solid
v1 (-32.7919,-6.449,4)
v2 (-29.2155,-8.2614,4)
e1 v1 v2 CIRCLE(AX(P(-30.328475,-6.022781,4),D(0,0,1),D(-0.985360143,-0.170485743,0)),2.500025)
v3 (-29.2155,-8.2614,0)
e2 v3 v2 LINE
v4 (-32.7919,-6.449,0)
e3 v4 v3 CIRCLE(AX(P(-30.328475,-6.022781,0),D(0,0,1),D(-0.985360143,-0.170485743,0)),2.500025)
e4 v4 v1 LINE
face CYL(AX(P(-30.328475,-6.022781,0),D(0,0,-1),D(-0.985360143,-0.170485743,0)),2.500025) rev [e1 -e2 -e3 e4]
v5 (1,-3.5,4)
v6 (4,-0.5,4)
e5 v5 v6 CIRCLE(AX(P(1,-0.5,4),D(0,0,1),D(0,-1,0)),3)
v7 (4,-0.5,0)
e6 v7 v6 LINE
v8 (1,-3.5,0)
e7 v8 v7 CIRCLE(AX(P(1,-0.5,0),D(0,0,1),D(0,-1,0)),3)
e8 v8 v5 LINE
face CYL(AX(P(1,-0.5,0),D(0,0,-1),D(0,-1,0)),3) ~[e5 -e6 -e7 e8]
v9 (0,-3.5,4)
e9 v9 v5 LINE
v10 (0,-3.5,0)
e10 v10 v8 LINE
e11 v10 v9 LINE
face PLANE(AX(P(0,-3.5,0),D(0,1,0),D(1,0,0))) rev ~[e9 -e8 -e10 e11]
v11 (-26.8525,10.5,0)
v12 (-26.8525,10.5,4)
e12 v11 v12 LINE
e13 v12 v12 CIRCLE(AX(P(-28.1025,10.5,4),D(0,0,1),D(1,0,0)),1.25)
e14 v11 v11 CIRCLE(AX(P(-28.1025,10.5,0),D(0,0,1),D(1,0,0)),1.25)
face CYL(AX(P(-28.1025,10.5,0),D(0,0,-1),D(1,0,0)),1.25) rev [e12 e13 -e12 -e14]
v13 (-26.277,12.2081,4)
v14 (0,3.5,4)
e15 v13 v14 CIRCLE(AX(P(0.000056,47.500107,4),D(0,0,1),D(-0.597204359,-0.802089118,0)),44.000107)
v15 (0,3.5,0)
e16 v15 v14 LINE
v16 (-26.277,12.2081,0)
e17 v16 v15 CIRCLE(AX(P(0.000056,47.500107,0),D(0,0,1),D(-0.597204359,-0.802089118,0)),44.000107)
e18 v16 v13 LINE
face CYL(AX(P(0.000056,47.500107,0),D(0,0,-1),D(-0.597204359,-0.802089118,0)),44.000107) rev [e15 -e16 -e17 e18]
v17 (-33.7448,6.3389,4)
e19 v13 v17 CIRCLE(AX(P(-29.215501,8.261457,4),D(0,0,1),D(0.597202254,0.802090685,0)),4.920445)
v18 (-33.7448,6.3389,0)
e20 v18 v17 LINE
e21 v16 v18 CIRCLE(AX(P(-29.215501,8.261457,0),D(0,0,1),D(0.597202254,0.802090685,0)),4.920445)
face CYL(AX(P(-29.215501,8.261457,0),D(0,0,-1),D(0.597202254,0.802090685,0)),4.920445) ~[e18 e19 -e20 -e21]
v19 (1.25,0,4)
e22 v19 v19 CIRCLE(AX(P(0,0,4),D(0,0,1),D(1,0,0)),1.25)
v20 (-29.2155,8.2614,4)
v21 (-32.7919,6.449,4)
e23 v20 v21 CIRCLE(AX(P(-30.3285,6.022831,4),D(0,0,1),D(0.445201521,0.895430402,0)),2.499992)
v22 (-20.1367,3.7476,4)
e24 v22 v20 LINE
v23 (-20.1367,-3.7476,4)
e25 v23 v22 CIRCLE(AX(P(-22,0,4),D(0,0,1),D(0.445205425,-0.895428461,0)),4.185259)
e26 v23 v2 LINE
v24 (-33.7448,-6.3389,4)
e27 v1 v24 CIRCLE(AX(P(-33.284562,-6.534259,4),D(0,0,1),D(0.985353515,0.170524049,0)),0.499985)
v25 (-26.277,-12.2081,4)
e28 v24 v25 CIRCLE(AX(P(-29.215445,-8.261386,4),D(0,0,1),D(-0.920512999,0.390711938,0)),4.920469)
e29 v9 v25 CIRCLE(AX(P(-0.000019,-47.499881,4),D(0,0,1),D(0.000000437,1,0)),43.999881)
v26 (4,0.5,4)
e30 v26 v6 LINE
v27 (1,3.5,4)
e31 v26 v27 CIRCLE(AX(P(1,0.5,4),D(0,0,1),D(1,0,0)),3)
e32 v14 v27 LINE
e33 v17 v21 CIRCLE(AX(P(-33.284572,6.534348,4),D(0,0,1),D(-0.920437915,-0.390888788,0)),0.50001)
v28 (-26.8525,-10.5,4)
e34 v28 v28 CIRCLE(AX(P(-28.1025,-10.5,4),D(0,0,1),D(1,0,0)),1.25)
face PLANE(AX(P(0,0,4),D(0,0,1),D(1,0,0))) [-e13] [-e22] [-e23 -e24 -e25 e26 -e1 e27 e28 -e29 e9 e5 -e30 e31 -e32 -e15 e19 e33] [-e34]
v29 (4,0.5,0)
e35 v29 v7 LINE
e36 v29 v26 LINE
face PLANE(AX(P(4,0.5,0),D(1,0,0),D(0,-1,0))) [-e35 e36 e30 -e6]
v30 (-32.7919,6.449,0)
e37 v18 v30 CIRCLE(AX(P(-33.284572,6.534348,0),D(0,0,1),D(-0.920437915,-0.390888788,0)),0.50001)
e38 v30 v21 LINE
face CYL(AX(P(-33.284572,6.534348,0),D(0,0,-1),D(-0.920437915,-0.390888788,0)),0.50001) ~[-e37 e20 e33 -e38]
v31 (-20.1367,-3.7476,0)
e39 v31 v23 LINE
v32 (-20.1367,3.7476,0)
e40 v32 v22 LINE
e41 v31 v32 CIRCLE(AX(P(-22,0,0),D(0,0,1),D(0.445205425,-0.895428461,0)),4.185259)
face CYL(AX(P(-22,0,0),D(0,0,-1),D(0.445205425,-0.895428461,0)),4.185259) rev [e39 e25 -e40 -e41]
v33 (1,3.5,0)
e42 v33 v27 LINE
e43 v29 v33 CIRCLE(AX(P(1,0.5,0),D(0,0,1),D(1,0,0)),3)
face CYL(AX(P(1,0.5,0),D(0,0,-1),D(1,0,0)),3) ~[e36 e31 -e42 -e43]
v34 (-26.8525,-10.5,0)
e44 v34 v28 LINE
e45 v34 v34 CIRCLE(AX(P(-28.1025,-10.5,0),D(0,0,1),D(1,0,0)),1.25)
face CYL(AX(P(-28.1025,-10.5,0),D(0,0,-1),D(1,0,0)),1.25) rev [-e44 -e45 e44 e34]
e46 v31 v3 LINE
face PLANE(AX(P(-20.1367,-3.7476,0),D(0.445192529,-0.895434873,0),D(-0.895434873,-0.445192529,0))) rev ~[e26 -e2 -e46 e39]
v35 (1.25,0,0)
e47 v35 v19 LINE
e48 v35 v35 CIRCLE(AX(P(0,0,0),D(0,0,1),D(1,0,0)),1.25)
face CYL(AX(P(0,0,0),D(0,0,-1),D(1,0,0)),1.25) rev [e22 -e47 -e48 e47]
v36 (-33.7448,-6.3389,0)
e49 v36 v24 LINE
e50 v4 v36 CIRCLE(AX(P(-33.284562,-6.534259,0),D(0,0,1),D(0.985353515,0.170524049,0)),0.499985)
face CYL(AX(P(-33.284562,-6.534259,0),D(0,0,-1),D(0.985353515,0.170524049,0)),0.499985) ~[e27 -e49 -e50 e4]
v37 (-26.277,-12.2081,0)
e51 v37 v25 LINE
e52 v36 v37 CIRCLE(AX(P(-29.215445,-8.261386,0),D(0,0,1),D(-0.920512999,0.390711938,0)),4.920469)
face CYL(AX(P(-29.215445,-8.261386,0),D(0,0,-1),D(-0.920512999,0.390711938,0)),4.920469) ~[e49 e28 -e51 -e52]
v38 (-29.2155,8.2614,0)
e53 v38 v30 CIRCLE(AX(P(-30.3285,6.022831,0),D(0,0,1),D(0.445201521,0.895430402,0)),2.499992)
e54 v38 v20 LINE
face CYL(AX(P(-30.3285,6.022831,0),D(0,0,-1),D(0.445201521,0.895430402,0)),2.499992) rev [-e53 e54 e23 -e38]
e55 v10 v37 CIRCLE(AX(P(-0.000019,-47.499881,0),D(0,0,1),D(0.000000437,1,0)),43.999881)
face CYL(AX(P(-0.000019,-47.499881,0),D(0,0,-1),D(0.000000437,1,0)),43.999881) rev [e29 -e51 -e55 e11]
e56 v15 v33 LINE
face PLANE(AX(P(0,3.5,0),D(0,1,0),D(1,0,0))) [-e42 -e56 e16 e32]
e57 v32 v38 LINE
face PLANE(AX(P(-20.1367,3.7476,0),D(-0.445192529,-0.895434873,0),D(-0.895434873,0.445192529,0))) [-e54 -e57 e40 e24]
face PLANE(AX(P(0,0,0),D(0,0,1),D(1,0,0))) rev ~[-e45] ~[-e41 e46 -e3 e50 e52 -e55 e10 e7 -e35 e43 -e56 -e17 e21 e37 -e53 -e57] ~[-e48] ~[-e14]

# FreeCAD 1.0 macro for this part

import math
import FreeCAD as App
import Part
import Sketcher
from FreeCAD import Vector
Q = App.Units.Quantity

doc = App.newDocument("Part")
body = doc.addObject("PartDesign::Body", "Body")

# Sketch on XY plane
sketch1 = body.newObject("Sketcher::SketchObject", "Sketch")
sketch1.AttachmentSupport = (doc.getObject("XY_Plane"), [""])
sketch1.MapMode = "FlatFace"
sketch1.addGeometry(Part.LineSegment(Vector(1, 3.5, 0), Vector(0, 3.5, 0)), False)
sketch1.addGeometry(Part.ArcOfCircle(Part.Circle(Vector(0, 47.5, 0), Vector(0, 0, 1), 44), math.radians(-127), math.radians(-90)), False)
sketch1.addGeometry(Part.ArcOfCircle(Part.Circle(Vector(-29.22, 8.26, 0), Vector(0, 0, 1), 4.92), math.radians(53), math.radians(203)), False)
sketch1.addGeometry(Part.ArcOfCircle(Part.Circle(Vector(-33.28, 6.53, 0), Vector(0, 0, 1), 0.5), math.radians(-157), math.radians(-10)), False)
sketch1.addGeometry(Part.ArcOfCircle(Part.Circle(Vector(-30.33, 6.02, 0), Vector(0, 0, 1), 2.5), math.radians(64), math.radians(170)), False)
sketch1.addGeometry(Part.LineSegment(Vector(-29.22, 8.26, 0), Vector(-20.14, 3.75, 0)), False)
sketch1.addGeometry(Part.ArcOfCircle(Part.Circle(Vector(-22, 0, 0), Vector(0, 0, 1), 4.19), math.radians(-64), math.radians(64)), False)
sketch1.addGeometry(Part.LineSegment(Vector(-20.14, -3.75, 0), Vector(-29.22, -8.26, 0)), False)
sketch1.addGeometry(Part.ArcOfCircle(Part.Circle(Vector(-30.33, -6.02, 0), Vector(0, 0, 1), 2.5), math.radians(-170), math.radians(-64)), False)
sketch1.addGeometry(Part.ArcOfCircle(Part.Circle(Vector(-33.28, -6.53, 0), Vector(0, 0, 1), 0.5), math.radians(10), math.radians(157)), False)
sketch1.addGeometry(Part.ArcOfCircle(Part.Circle(Vector(-29.22, -8.26, 0), Vector(0, 0, 1), 4.92), math.radians(157), math.radians(307)), False)
sketch1.addGeometry(Part.ArcOfCircle(Part.Circle(Vector(0, -47.5, 0), Vector(0, 0, 1), 44), math.radians(90), math.radians(127)), False)
sketch1.addGeometry(Part.LineSegment(Vector(0, -3.5, 0), Vector(1, -3.5, 0)), False)
sketch1.addGeometry(Part.ArcOfCircle(Part.Circle(Vector(1, -0.5, 0), Vector(0, 0, 1), 3), math.radians(-90), math.radians(0)), False)
sketch1.addGeometry(Part.LineSegment(Vector(4, -0.5, 0), Vector(4, 0.5, 0)), False)
sketch1.addGeometry(Part.ArcOfCircle(Part.Circle(Vector(1, 0.5, 0), Vector(0, 0, 1), 3), math.radians(0), math.radians(90)), False)
sketch1.addGeometry(Part.Circle(Vector(-28.1, -10.5, 0), Vector(0, 0, 1), 1.25), False)
sketch1.addGeometry(Part.Circle(Vector(0, 0, 0), Vector(0, 0, 1), 1.25), False)
sketch1.addGeometry(Part.Circle(Vector(-28.1, 10.5, 0), Vector(0, 0, 1), 1.25), False)
sketch1.addConstraint(Sketcher.Constraint("Tangent", 0, 2, 1, 2))
sketch1.addConstraint(Sketcher.Constraint("Tangent", 1, 1, 2, 1))
sketch1.addConstraint(Sketcher.Constraint("Tangent", 2, 2, 3, 1))
sketch1.addConstraint(Sketcher.Constraint("Tangent", 3, 2, 4, 2))
sketch1.addConstraint(Sketcher.Constraint("Tangent", 4, 1, 5, 1))
sketch1.addConstraint(Sketcher.Constraint("Tangent", 5, 2, 6, 2))
sketch1.addConstraint(Sketcher.Constraint("Tangent", 6, 1, 7, 1))
sketch1.addConstraint(Sketcher.Constraint("Tangent", 7, 2, 8, 2))
sketch1.addConstraint(Sketcher.Constraint("Tangent", 8, 1, 9, 1))
sketch1.addConstraint(Sketcher.Constraint("Tangent", 9, 2, 10, 1))
sketch1.addConstraint(Sketcher.Constraint("Tangent", 10, 2, 11, 2))
sketch1.addConstraint(Sketcher.Constraint("Tangent", 11, 1, 12, 1))
sketch1.addConstraint(Sketcher.Constraint("Tangent", 12, 2, 13, 1))
sketch1.addConstraint(Sketcher.Constraint("Tangent", 13, 2, 14, 1))
sketch1.addConstraint(Sketcher.Constraint("Tangent", 14, 2, 15, 1))
sketch1.addConstraint(Sketcher.Constraint("Tangent", 15, 2, 0, 1))
sketch1.addConstraint(Sketcher.Constraint("Horizontal", 0))
sketch1.addConstraint(Sketcher.Constraint("Horizontal", 12))
sketch1.addConstraint(Sketcher.Constraint("Vertical", 14))
sketch1.addConstraint(Sketcher.Constraint("Coincident", 17, 3, -1, 1))
sketch1.addConstraint(Sketcher.Constraint("Coincident", 4, 1, 2, 3))
sketch1.addConstraint(Sketcher.Constraint("Coincident", 7, 2, 10, 3))
sketch1.addConstraint(Sketcher.Constraint("Equal", 4, 8))
sketch1.addConstraint(Sketcher.Constraint("Equal", 3, 9))
sketch1.addConstraint(Sketcher.Constraint("Equal", 2, 10))
sketch1.addConstraint(Sketcher.Constraint("Equal", 1, 11))
sketch1.addConstraint(Sketcher.Constraint("Equal", 13, 15))
sketch1.addConstraint(Sketcher.Constraint("Equal", 16, 17))
sketch1.addConstraint(Sketcher.Constraint("Equal", 17, 18))
sketch1.addConstraint(Sketcher.Constraint("Symmetric", 1, 3, 11, 3, -1, 1))
sketch1.addConstraint(Sketcher.Constraint("Symmetric", 4, 3, 8, 3, -1))
sketch1.addConstraint(Sketcher.Constraint("Symmetric", 16, 3, 18, 3, -1))
sketch1.addConstraint(Sketcher.Constraint("PointOnObject", 1, 3, -2))
sketch1.addConstraint(Sketcher.Constraint("Equal", 12, 14))
sketch1.addConstraint(Sketcher.Constraint("Radius", 1, Q("44 mm")))
sketch1.addConstraint(Sketcher.Constraint("Radius", 13, Q("3 mm")))
sketch1.addConstraint(Sketcher.Constraint("Diameter", 16, Q("2.5 mm")))
sketch1.addConstraint(Sketcher.Constraint("Radius", 3, Q("0.5 mm")))
sketch1.addConstraint(Sketcher.Constraint("Radius", 4, Q("2.5 mm")))
sketch1.addConstraint(Sketcher.Constraint("DistanceX", 6, 3, -1, 1, Q("22 mm")))
sketch1.addConstraint(Sketcher.Constraint("DistanceX", -1, 1, 13, 2, Q("4 mm")))
sketch1.addConstraint(Sketcher.Constraint("DistanceY", 16, 3, -1, 1, Q("10.5 mm")))
sketch1.addConstraint(Sketcher.Constraint("Radius", 2, Q("4.9205 mm")))
sketch1.addConstraint(Sketcher.Constraint("Radius", 6, Q("4.1853 mm")))
sketch1.addConstraint(Sketcher.Constraint("Distance", 5, Q("10.139 mm")))
sketch1.addConstraint(Sketcher.Constraint("DistanceX", 10, 3, 16, 3, Q("1.113 mm")))
pad1 = body.newObject("PartDesign::Pad", "Pad")
pad1.Profile = sketch1
pad1.Length = 4

doc.recompute()
